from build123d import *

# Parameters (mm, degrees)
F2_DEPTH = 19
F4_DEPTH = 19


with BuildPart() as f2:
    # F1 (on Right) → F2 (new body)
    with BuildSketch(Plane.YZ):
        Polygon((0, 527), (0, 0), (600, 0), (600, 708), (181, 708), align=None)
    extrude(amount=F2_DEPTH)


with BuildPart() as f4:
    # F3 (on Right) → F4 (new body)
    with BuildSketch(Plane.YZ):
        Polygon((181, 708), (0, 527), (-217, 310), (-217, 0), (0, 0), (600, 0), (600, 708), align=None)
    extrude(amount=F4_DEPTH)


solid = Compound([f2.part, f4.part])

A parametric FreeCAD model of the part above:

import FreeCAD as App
import Part
import Sketcher
Q = App.Units.Quantity


def add_polygon(sketch, points):
    """Adds a closed chain of lines whose ends are joined by coincident constraints."""
    first, n = sketch.GeometryCount, len(points)
    for a, b in zip(points, points[1:] + points[:1]):
        sketch.addGeometry(Part.LineSegment(App.Vector(*a, 0), App.Vector(*b, 0)), False)
    for i in range(n):
        sketch.addConstraint(Sketcher.Constraint("Coincident", first + i, 2, first + (i + 1) % n, 1))

doc = App.newDocument("Part")
body = doc.addObject("PartDesign::Body", "Body")

# Sketch on YZ plane
sketch1 = body.newObject("Sketcher::SketchObject", "Sketch")
sketch1.AttachmentSupport = (doc.getObject("YZ_Plane"), [""])
sketch1.MapMode = "FlatFace"
add_polygon(sketch1, [(0, 527), (0, 0), (600, 0), (600, 708), (181, 708)])  # lines 0-4
sketch1.addConstraint(Sketcher.Constraint("Vertical", 0))
sketch1.addConstraint(Sketcher.Constraint("Horizontal", 1))
sketch1.addConstraint(Sketcher.Constraint("Vertical", 2))
sketch1.addConstraint(Sketcher.Constraint("Horizontal", 3))
sketch1.addConstraint(Sketcher.Constraint("Coincident", 0, 2, -1, 1))
sketch1.addConstraint(Sketcher.Constraint("DistanceX", 1, 1, 1, 2, Q("600 mm")))
sketch1.addConstraint(Sketcher.Constraint("DistanceX", 3, 2, 3, 1, Q("419 mm")))
sketch1.addConstraint(Sketcher.Constraint("DistanceY", 0, 2, 0, 1, Q("527 mm")))
sketch1.addConstraint(Sketcher.Constraint("DistanceY", 2, 1, 2, 2, Q("708 mm")))
pad1 = body.newObject("PartDesign::Pad", "Pad")
pad1.Profile = sketch1
pad1.Length = 19
body2 = doc.addObject("PartDesign::Body", "Body001")

# Sketch on YZ plane
sketch2 = body2.newObject("Sketcher::SketchObject", "Sketch001")
sketch2.AttachmentSupport = (doc.getObject("YZ_Plane001"), [""])
sketch2.MapMode = "FlatFace"
add_polygon(sketch2, [(181, 708), (-217, 310), (-217, 0), (600, 0), (600, 708)])  # lines 0-4
sketch2.addConstraint(Sketcher.Constraint("Vertical", 1))
sketch2.addConstraint(Sketcher.Constraint("Horizontal", 2))
sketch2.addConstraint(Sketcher.Constraint("Vertical", 3))
sketch2.addConstraint(Sketcher.Constraint("Horizontal", 4))
sketch2.addConstraint(Sketcher.Constraint("PointOnObject", 1, 2, -1))
sketch2.addConstraint(Sketcher.Constraint("DistanceX", 2, 1, 2, 2, Q("817 mm")))
sketch2.addConstraint(Sketcher.Constraint("DistanceX", 4, 2, 4, 1, Q("419 mm")))
sketch2.addConstraint(Sketcher.Constraint("DistanceY", 1, 2, 1, 1, Q("310 mm")))
sketch2.addConstraint(Sketcher.Constraint("DistanceY", 3, 1, 3, 2, Q("708 mm")))
sketch2.addConstraint(Sketcher.Constraint("DistanceX", 0, 2, -1, 1, Q("217 mm")))
pad2 = body2.newObject("PartDesign::Pad", "Pad001")
pad2.Profile = sketch2
pad2.Length = 19

doc.recompute()
